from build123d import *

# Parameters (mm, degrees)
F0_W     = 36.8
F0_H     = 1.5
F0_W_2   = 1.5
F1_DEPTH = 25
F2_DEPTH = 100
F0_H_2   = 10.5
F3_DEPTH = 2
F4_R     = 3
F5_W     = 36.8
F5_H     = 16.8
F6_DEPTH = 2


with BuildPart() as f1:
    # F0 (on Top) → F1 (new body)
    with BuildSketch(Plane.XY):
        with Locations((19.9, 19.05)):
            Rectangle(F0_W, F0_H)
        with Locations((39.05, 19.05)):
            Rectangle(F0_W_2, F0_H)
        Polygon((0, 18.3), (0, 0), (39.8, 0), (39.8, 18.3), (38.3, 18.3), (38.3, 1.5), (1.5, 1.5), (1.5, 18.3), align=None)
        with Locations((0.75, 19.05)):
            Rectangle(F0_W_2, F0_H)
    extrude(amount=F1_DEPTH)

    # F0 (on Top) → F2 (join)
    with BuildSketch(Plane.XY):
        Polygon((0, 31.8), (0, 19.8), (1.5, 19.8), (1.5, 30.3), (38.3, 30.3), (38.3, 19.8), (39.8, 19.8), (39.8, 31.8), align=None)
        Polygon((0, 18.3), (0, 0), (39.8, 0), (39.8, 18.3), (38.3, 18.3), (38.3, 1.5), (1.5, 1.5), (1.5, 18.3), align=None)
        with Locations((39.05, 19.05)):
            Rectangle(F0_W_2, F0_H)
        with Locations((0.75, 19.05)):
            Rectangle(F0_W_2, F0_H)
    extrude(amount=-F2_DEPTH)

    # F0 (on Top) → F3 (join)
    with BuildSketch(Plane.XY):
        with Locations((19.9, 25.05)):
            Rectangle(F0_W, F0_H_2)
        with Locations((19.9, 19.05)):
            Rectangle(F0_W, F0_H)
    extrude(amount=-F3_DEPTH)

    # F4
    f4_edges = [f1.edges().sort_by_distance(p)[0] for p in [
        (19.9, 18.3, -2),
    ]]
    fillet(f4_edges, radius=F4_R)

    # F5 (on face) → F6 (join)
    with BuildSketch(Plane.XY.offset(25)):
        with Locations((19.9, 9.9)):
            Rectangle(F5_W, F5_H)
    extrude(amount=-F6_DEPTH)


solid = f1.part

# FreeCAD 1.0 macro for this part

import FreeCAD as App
import Part
import Sketcher

V = App.Vector


def edges_at(feature, points):
    """Names of the edges that pass closest to the given points."""
    edges = feature.Shape.Edges
    near = lambda p: min(range(len(edges)), key=lambda i: edges[i].distToShape(Part.Vertex(*p))[0])
    return sorted({f"Edge{near(p) + 1}" for p in points})

doc = App.newDocument("Part")
body = doc.addObject("PartDesign::Body", "Body")

# Sketch on XY plane
sketch1 = doc.addObject("Sketcher::SketchObject", "Sketch")
body.addObject(sketch1)
sketch1.AttachmentSupport = (doc.XY_Plane, [""])
sketch1.MapMode = "FlatFace"
sketch1.addGeometry([
    Part.LineSegment(V(40, 20, 0), V(0, 20, 0)),  # 0
    Part.LineSegment(V(0, 20, 0), V(0, 0, 0)),  # 1
    Part.LineSegment(V(0, 0, 0), V(40, 0, 0)),  # 2
    Part.LineSegment(V(40, 0, 0), V(40, 20, 0)),  # 3
    Part.LineSegment(V(2, 2, 0), V(2, 18, 0)),  # 4
    Part.LineSegment(V(2, 18, 0), V(38, 18, 0)),  # 5
    Part.LineSegment(V(38, 18, 0), V(38, 2, 0)),  # 6
    Part.LineSegment(V(38, 2, 0), V(2, 2, 0)),  # 7
], False)
sketch1.addConstraint([
    Sketcher.Constraint("Coincident", 0, 2, 1, 1),
    Sketcher.Constraint("Coincident", 1, 2, 2, 1),
    Sketcher.Constraint("Coincident", 2, 2, 3, 1),
    Sketcher.Constraint("Coincident", 3, 2, 0, 1),
    Sketcher.Constraint("Coincident", 4, 2, 5, 1),
    Sketcher.Constraint("Coincident", 5, 2, 6, 1),
    Sketcher.Constraint("Coincident", 6, 2, 7, 1),
    Sketcher.Constraint("Coincident", 7, 2, 4, 1),
    Sketcher.Constraint("Horizontal", 0),
    Sketcher.Constraint("Vertical", 1),
    Sketcher.Constraint("Horizontal", 2),
    Sketcher.Constraint("Vertical", 3),
    Sketcher.Constraint("Vertical", 4),
    Sketcher.Constraint("Horizontal", 5),
    Sketcher.Constraint("Vertical", 6),
    Sketcher.Constraint("Horizontal", 7),
    Sketcher.Constraint("Coincident", 1, 2, -1, 1),
    Sketcher.Constraint("DistanceX", 0, 2, 0, 1, 39.8),
    Sketcher.Constraint("DistanceX", 5, 1, 5, 2, 36.8),
    Sketcher.Constraint("DistanceY", 1, 2, 1, 1, 19.8),
    Sketcher.Constraint("DistanceY", 4, 1, 4, 2, 16.8),
    Sketcher.Constraint("DistanceX", -1, 1, 4, 2, 1.5),
    Sketcher.Constraint("DistanceY", -1, 1, 4, 2, 18.3),
])
pad1 = doc.addObject("PartDesign::Pad", "Pad")
body.addObject(pad1)
pad1.Profile = sketch1
pad1.Length = 25

# Sketch on XY plane
sketch2 = doc.addObject("Sketcher::SketchObject", "Sketch001")
body.addObject(sketch2)
sketch2.AttachmentSupport = (doc.XY_Plane, [""])
sketch2.MapMode = "FlatFace"
sketch2.addGeometry([
    Part.LineSegment(V(0, 32, 0), V(0, 0, 0)),  # 0
    Part.LineSegment(V(0, 0, 0), V(40, 0, 0)),  # 1
    Part.LineSegment(V(40, 0, 0), V(40, 32, 0)),  # 2
    Part.LineSegment(V(40, 32, 0), V(0, 32, 0)),  # 3
    Part.LineSegment(V(2, 30, 0), V(38, 30, 0)),  # 4
    Part.LineSegment(V(38, 30, 0), V(38, 2, 0)),  # 5
    Part.LineSegment(V(38, 2, 0), V(2, 2, 0)),  # 6
    Part.LineSegment(V(2, 2, 0), V(2, 30, 0)),  # 7
], False)
sketch2.addConstraint([
    Sketcher.Constraint("Coincident", 0, 2, 1, 1),
    Sketcher.Constraint("Coincident", 1, 2, 2, 1),
    Sketcher.Constraint("Coincident", 2, 2, 3, 1),
    Sketcher.Constraint("Coincident", 3, 2, 0, 1),
    Sketcher.Constraint("Coincident", 4, 2, 5, 1),
    Sketcher.Constraint("Coincident", 5, 2, 6, 1),
    Sketcher.Constraint("Coincident", 6, 2, 7, 1),
    Sketcher.Constraint("Coincident", 7, 2, 4, 1),
    Sketcher.Constraint("Vertical", 0),
    Sketcher.Constraint("Horizontal", 1),
    Sketcher.Constraint("Vertical", 2),
    Sketcher.Constraint("Horizontal", 3),
    Sketcher.Constraint("Horizontal", 4),
    Sketcher.Constraint("Vertical", 5),
    Sketcher.Constraint("Horizontal", 6),
    Sketcher.Constraint("Vertical", 7),
    Sketcher.Constraint("Coincident", 0, 2, -1, 1),
    Sketcher.Constraint("DistanceX", 1, 1, 1, 2, 39.8),
    Sketcher.Constraint("DistanceX", 4, 1, 4, 2, 36.8),
    Sketcher.Constraint("DistanceY", 0, 2, 0, 1, 31.8),
    Sketcher.Constraint("DistanceY", 5, 2, 5, 1, 28.8),
    Sketcher.Constraint("DistanceX", -1, 1, 4, 2, 38.3),
    Sketcher.Constraint("DistanceY", -1, 1, 4, 2, 30.3),
])
pad2 = doc.addObject("PartDesign::Pad", "Pad001")
body.addObject(pad2)
pad2.Profile = sketch2
pad2.Length = 100
pad2.Reversed = True

# Sketch on XY plane
sketch3 = doc.addObject("Sketcher::SketchObject", "Sketch002")
body.addObject(sketch3)
sketch3.AttachmentSupport = (doc.XY_Plane, [""])
sketch3.MapMode = "FlatFace"
sketch3.addGeometry([
    Part.LineSegment(V(2, 30, 0), V(2, 18, 0)),
    Part.LineSegment(V(2, 18, 0), V(38, 18, 0)),
    Part.LineSegment(V(38, 18, 0), V(38, 30, 0)),
    Part.LineSegment(V(38, 30, 0), V(2, 30, 0)),
], False)
sketch3.addConstraint([
    Sketcher.Constraint("Coincident", 0, 2, 1, 1),
    Sketcher.Constraint("Coincident", 1, 2, 2, 1),
    Sketcher.Constraint("Coincident", 2, 2, 3, 1),
    Sketcher.Constraint("Coincident", 3, 2, 0, 1),
    Sketcher.Constraint("Vertical", 0),
    Sketcher.Constraint("Horizontal", 1),
    Sketcher.Constraint("Vertical", 2),
    Sketcher.Constraint("Horizontal", 3),
    Sketcher.Constraint("DistanceY", 0, 2, 0, 1, 12.0),
    Sketcher.Constraint("DistanceX", 1, 1, 1, 2, 36.8),
    Sketcher.Constraint("DistanceX", -1, 1, 0, 2, 1.5),
    Sketcher.Constraint("DistanceY", -1, 1, 0, 2, 18.3),
])
pad3 = doc.addObject("PartDesign::Pad", "Pad002")
body.addObject(pad3)
pad3.Profile = sketch3
pad3.Length = 2
pad3.Reversed = True
doc.recompute()

fillet = doc.addObject("PartDesign::Fillet", "Fillet")
body.addObject(fillet)
fillet.Base = (pad3, edges_at(pad3, [(19.9, 18.3, -2)]))
fillet.Radius = 3

# Sketch on XY plane
sketch4 = doc.addObject("Sketcher::SketchObject", "Sketch003")
body.addObject(sketch4)
sketch4.AttachmentSupport = (doc.XY_Plane, [""])
sketch4.MapMode = "FlatFace"
sketch4.AttachmentOffset = App.Placement(V(0, 0, 25), App.Rotation())
sketch4.addGeometry([
    Part.LineSegment(V(2, 18, 0), V(2, 2, 0)),
    Part.LineSegment(V(2, 2, 0), V(38, 2, 0)),
    Part.LineSegment(V(38, 2, 0), V(38, 18, 0)),
    Part.LineSegment(V(38, 18, 0), V(2, 18, 0)),
], False)
sketch4.addConstraint([
    Sketcher.Constraint("Coincident", 0, 2, 1, 1),
    Sketcher.Constraint("Coincident", 1, 2, 2, 1),
    Sketcher.Constraint("Coincident", 2, 2, 3, 1),
    Sketcher.Constraint("Coincident", 3, 2, 0, 1),
    Sketcher.Constraint("Vertical", 0),
    Sketcher.Constraint("Horizontal", 1),
    Sketcher.Constraint("Vertical", 2),
    Sketcher.Constraint("Horizontal", 3),
    Sketcher.Constraint("DistanceX", 1, 1, 1, 2, 36.8),
    Sketcher.Constraint("DistanceY", 0, 2, 0, 1, 16.8),
    Sketcher.Constraint("DistanceX", -1, 1, 0, 2, 1.5),
    Sketcher.Constraint("DistanceY", -1, 1, 0, 2, 1.5),
])
pad4 = doc.addObject("PartDesign::Pad", "Pad003")
body.addObject(pad4)
pad4.Profile = sketch4
pad4.Length = 2
pad4.Reversed = True

doc.recompute()
